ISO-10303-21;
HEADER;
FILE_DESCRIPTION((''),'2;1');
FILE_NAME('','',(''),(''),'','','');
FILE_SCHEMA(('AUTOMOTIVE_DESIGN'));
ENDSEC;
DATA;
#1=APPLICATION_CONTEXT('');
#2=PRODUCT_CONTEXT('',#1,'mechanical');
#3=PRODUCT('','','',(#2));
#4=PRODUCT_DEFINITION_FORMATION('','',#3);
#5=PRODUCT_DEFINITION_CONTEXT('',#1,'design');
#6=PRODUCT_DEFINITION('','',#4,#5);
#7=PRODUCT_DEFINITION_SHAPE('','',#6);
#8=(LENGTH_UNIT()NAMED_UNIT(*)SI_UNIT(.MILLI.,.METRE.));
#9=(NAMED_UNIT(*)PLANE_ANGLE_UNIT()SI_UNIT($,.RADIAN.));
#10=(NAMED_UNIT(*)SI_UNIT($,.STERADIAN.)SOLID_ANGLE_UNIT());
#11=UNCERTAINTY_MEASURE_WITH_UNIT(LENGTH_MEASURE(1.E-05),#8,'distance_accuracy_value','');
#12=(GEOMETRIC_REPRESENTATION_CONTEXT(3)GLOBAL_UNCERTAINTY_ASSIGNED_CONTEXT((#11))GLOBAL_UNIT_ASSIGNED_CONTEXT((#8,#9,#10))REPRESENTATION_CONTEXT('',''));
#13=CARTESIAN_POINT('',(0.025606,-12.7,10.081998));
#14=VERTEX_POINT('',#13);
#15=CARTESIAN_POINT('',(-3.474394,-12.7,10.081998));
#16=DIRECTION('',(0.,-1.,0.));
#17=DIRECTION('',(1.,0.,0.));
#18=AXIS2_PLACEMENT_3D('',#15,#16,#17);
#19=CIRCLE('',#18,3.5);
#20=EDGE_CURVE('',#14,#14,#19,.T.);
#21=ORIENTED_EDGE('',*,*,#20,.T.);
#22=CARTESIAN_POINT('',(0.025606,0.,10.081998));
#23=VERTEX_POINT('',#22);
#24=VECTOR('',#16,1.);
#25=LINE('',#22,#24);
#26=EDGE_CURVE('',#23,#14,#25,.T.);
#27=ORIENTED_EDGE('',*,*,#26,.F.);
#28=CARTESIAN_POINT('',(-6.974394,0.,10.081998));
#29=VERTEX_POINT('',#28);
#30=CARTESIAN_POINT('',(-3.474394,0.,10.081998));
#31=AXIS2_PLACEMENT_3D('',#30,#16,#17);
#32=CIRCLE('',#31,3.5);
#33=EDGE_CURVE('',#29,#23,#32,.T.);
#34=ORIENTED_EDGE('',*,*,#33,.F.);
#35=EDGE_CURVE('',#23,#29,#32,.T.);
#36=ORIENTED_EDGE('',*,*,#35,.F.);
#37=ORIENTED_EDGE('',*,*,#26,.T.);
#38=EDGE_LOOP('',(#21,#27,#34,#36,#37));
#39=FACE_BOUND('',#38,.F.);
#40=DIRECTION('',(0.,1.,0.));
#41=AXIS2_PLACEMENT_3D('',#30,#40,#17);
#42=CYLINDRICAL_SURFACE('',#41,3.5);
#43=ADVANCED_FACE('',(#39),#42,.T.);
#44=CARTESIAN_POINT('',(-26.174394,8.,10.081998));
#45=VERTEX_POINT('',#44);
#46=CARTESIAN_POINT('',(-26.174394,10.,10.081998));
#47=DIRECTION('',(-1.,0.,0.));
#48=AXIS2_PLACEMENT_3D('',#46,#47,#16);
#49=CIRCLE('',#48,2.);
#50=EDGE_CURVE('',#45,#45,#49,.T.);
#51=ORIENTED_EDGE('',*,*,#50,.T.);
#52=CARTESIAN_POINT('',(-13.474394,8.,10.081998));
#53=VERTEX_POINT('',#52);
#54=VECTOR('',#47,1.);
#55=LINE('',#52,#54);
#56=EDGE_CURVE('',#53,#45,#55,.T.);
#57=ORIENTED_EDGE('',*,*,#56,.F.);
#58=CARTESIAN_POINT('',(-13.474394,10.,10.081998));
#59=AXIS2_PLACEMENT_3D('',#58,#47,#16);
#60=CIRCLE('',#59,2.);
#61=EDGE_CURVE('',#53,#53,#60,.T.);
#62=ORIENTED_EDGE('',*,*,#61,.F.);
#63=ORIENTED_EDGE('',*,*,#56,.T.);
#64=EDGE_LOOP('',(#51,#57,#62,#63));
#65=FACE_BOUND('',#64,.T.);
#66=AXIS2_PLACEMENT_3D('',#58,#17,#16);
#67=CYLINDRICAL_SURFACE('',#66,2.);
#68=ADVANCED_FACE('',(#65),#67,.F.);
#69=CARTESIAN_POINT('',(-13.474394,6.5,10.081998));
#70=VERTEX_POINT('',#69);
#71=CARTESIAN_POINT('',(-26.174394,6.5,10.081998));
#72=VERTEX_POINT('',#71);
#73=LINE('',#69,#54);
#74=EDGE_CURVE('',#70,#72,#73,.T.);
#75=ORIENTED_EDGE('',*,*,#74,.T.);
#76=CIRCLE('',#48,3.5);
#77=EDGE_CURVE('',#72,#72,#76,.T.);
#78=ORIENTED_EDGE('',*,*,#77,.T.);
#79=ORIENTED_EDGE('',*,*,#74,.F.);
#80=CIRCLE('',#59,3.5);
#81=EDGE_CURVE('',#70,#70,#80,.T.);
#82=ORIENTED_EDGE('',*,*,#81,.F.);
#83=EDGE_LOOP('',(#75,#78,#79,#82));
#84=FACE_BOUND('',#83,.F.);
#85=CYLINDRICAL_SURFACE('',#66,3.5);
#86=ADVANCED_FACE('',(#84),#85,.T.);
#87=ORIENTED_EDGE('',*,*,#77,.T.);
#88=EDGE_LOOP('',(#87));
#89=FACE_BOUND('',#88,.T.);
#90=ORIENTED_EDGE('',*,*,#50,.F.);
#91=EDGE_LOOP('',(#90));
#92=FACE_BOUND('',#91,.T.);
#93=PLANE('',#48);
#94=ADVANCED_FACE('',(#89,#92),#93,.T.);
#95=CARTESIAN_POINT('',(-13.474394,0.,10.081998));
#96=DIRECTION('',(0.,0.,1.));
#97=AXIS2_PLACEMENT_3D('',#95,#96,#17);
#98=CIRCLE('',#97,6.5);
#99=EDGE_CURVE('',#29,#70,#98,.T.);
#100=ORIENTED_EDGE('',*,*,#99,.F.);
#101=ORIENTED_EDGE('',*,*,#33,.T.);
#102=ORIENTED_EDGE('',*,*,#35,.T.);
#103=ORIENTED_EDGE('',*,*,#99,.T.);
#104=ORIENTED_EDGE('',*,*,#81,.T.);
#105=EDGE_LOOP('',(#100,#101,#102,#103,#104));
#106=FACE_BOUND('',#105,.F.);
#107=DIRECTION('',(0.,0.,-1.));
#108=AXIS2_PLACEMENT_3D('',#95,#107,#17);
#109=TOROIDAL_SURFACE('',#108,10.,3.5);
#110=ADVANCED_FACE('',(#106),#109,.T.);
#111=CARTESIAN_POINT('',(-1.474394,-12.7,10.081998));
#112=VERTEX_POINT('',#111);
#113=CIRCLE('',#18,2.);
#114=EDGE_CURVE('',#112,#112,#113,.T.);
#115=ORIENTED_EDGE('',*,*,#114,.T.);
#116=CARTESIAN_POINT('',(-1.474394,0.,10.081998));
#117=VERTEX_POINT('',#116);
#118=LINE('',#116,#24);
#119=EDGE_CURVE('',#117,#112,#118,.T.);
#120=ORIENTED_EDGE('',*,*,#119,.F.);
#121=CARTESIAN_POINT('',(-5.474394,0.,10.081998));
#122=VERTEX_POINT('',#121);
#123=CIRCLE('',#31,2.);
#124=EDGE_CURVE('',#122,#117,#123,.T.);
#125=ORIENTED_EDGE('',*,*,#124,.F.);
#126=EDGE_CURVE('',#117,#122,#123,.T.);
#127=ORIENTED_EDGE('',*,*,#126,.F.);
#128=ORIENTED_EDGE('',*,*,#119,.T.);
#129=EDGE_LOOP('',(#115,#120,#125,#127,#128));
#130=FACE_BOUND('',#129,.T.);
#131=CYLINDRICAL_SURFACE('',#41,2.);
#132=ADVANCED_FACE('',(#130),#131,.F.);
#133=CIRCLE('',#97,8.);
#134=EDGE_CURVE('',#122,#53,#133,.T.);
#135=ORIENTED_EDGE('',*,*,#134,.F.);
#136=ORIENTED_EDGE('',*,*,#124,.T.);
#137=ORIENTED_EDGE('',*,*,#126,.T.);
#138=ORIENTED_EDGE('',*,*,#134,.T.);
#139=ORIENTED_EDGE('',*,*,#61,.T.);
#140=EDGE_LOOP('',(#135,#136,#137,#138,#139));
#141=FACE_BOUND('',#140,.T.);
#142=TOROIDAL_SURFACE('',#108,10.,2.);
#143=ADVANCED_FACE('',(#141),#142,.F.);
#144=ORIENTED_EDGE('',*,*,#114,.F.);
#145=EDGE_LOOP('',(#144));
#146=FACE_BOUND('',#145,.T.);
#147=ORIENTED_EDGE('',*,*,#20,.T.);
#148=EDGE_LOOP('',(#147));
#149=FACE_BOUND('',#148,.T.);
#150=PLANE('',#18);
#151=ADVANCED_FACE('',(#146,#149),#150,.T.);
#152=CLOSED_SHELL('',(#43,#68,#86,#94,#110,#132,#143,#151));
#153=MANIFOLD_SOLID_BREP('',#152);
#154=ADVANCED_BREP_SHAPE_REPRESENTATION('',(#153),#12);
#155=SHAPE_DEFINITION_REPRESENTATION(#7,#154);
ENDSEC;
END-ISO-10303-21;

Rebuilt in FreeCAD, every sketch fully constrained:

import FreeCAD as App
import Part
import Sketcher

doc = App.newDocument("Part")
body = doc.addObject("PartDesign::Body", "Body")

# Sketch on XZ plane
sketch1 = body.newObject("Sketcher::SketchObject", "Sketch")
sketch1.AttachmentSupport = (doc.getObject("XZ_Plane"), [""])
sketch1.MapMode = "FlatFace"
sketch1.addGeometry([
    Part.Circle(App.Vector(-3.5, 10.1, 0), App.Vector(0, 0, 1), 3.5),
    Part.Circle(App.Vector(-3.5, 10.1, 0), App.Vector(0, 0, 1), 2),
], False)
sketch1.addConstraint([
    Sketcher.Constraint("Coincident", 1, 3, 0, 3),
    Sketcher.Constraint("Diameter", 0, 7.0),
    Sketcher.Constraint("Diameter", 1, 4.0),
    Sketcher.Constraint("DistanceY", -1, 1, 0, 3, 10.081998),
    Sketcher.Constraint("DistanceX", 0, 3, -1, 1, 3.474394),
])
pad1 = body.newObject("PartDesign::Pad", "Pad")
pad1.Profile = sketch1
pad1.Length = 12.7

# Sketch on XZ plane
sketch2 = body.newObject("Sketcher::SketchObject", "Sketch001")
sketch2.AttachmentSupport = (doc.getObject("XZ_Plane"), [""])
sketch2.MapMode = "FlatFace"
sketch2.addGeometry([
    Part.Circle(App.Vector(-3.5, 10.1, 0), App.Vector(0, 0, 1), 3.5),
    Part.Circle(App.Vector(-3.5, 10.1, 0), App.Vector(0, 0, 1), 2),
], False)
sketch2.addGeometry(Part.LineSegment(App.Vector(-13.5, 10.1, 0), App.Vector(-13.5, 20.1, 0)), True)  # axis
sketch2.addConstraint([
    Sketcher.Constraint("Vertical", 2),
    Sketcher.Constraint("Coincident", 1, 3, 0, 3),
    Sketcher.Constraint("Horizontal", 1, 3, 2, 1),
    Sketcher.Constraint("Diameter", 0, 7.0),
    Sketcher.Constraint("Diameter", 1, 4.0),
    Sketcher.Constraint("DistanceY", 2, 1, 2, 2, 10.0),
    Sketcher.Constraint("DistanceX", 2, 1, 0, 3, 10.0),
    Sketcher.Constraint("DistanceY", -1, 1, 0, 3, 10.081998),
    Sketcher.Constraint("DistanceX", 0, 3, -1, 1, 3.474394),
])
revolution = body.newObject("PartDesign::Revolution", "Revolution")
revolution.Profile = sketch2
revolution.ReferenceAxis = (sketch2, ["Axis0"])
revolution.Angle = 90

# Sketch on YZ plane
sketch3 = body.newObject("Sketcher::SketchObject", "Sketch002")
sketch3.AttachmentSupport = (doc.getObject("YZ_Plane"), [""])
sketch3.MapMode = "FlatFace"
sketch3.AttachmentOffset = App.Placement(App.Vector(0, 0, -13.474394), App.Rotation())
sketch3.addGeometry([
    Part.Circle(App.Vector(10, 10.1, 0), App.Vector(0, 0, 1), 3.5),
    Part.Circle(App.Vector(10, 10.1, 0), App.Vector(0, 0, 1), 2),
], False)
sketch3.addConstraint([
    Sketcher.Constraint("Coincident", 1, 3, 0, 3),
    Sketcher.Constraint("Diameter", 0, 7.0),
    Sketcher.Constraint("Diameter", 1, 4.0),
    Sketcher.Constraint("DistanceX", -1, 1, 0, 3, 10.0),
    Sketcher.Constraint("DistanceY", -1, 1, 0, 3, 10.081998),
])
pad2 = body.newObject("PartDesign::Pad", "Pad001")
pad2.Profile = sketch3
pad2.Length = 12.7
pad2.Reversed = True

doc.recompute()
